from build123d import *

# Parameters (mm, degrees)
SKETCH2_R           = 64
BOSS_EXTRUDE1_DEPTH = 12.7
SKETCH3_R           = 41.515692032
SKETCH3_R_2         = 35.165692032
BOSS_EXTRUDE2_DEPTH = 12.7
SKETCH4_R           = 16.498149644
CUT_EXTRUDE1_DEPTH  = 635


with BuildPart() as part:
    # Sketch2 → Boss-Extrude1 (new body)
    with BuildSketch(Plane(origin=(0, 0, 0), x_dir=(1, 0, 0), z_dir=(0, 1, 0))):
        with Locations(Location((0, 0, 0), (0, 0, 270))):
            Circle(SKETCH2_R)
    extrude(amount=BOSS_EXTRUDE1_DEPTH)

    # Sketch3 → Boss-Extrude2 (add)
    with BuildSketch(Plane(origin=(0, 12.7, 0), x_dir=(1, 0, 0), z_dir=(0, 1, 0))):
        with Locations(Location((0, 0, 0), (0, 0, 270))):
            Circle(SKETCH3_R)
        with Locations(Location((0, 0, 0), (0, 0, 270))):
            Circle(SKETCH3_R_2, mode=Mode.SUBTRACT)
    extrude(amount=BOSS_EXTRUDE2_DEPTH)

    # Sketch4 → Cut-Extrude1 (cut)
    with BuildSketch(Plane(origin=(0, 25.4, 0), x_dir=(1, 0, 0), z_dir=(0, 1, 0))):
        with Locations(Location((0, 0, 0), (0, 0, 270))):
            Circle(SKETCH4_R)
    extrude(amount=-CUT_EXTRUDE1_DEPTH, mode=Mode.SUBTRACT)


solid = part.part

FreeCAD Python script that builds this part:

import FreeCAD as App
import Part
import Sketcher
from FreeCAD import Vector
Q = App.Units.Quantity

doc = App.newDocument("Part")
body = doc.addObject("PartDesign::Body", "Body")

# Sketch on XZ plane
sketch1 = doc.addObject("Sketcher::SketchObject", "Sketch")
body.addObject(sketch1)
sketch1.AttachmentSupport = (doc.XZ_Plane, [""])
sketch1.MapMode = "FlatFace"
sketch1.addGeometry(Part.Circle(Vector(0, 0, 0), Vector(0, 0, 1), 64), False)
sketch1.addConstraint([
    Sketcher.Constraint("Coincident", 0, 3, -1, 1),
    Sketcher.Constraint("Diameter", 0, Q("128 mm")),
])
pad1 = doc.addObject("PartDesign::Pad", "Pad")
body.addObject(pad1)
pad1.Profile = sketch1
pad1.Length = Q("0.5 in")
pad1.Reversed = True

# Sketch on XZ plane
sketch2 = doc.addObject("Sketcher::SketchObject", "Sketch001")
body.addObject(sketch2)
sketch2.AttachmentSupport = (doc.XZ_Plane, [""])
sketch2.MapMode = "FlatFace"
sketch2.AttachmentOffset = App.Placement(Vector(0, 0, -0.5 * 25.4), App.Rotation())
sketch2.addGeometry([
    Part.Circle(Vector(0, 0, 0), Vector(0, 0, 1), 41.515692),
    Part.Circle(Vector(0, 0, 0), Vector(0, 0, 1), 35.165692),
], False)
sketch2.addConstraint([
    Sketcher.Constraint("Coincident", 0, 3, -1, 1),
    Sketcher.Constraint("Coincident", 1, 3, -1, 1),
    Sketcher.Constraint("Diameter", 0, Q("83.031384 mm")),
    Sketcher.Constraint("Diameter", 1, Q("70.331384 mm")),
])
pad2 = doc.addObject("PartDesign::Pad", "Pad001")
body.addObject(pad2)
pad2.Profile = sketch2
pad2.Length = Q("0.5 in")
pad2.Reversed = True

# Sketch on XZ plane
sketch3 = doc.addObject("Sketcher::SketchObject", "Sketch002")
body.addObject(sketch3)
sketch3.AttachmentSupport = (doc.XZ_Plane, [""])
sketch3.MapMode = "FlatFace"
sketch3.AttachmentOffset = App.Placement(Vector(0, 0, -1 * 25.4), App.Rotation())
sketch3.addGeometry(Part.Circle(Vector(0, 0, 0), Vector(0, 0, 1), 16.49815), False)
sketch3.addConstraint([
    Sketcher.Constraint("Coincident", 0, 3, -1, 1),
    Sketcher.Constraint("Diameter", 0, Q("32.996299 mm")),
])
pocket1 = doc.addObject("PartDesign::Pocket", "Pocket")
body.addObject(pocket1)
pocket1.Profile = sketch3
pocket1.Length = Q("25 in")
pocket1.Reversed = True

doc.recompute()
